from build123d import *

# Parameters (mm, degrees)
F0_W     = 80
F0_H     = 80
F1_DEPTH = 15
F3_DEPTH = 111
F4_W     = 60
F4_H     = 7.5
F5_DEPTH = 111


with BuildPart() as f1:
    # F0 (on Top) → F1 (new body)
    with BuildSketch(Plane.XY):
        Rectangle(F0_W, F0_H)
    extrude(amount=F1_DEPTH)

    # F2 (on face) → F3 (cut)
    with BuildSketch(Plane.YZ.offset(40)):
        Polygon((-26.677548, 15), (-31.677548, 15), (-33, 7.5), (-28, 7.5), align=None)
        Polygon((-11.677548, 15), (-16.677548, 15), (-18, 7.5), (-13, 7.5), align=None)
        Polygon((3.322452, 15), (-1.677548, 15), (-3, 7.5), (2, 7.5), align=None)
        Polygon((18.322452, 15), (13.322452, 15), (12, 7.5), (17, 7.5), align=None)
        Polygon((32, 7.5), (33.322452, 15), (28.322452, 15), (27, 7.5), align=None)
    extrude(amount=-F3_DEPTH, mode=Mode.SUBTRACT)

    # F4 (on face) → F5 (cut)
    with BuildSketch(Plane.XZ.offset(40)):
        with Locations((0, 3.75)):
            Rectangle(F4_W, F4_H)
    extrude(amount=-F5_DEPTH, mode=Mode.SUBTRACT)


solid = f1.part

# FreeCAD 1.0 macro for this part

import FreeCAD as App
import Part
import Sketcher
from FreeCAD import Vector
Q = App.Units.Quantity


def add_polygon(sketch, points):
    """Adds a closed chain of lines whose ends are joined by coincident constraints."""
    first, n = sketch.GeometryCount, len(points)
    for a, b in zip(points, points[1:] + points[:1]):
        sketch.addGeometry(Part.LineSegment(App.Vector(*a, 0), App.Vector(*b, 0)), False)
    for i in range(n):
        sketch.addConstraint(Sketcher.Constraint("Coincident", first + i, 2, first + (i + 1) % n, 1))

doc = App.newDocument("Part")
body = doc.addObject("PartDesign::Body", "Body")

# Sketch on XY plane
sketch1 = doc.addObject("Sketcher::SketchObject", "Sketch")
body.addObject(sketch1)
sketch1.AttachmentSupport = (doc.XY_Plane, [""])
sketch1.MapMode = "FlatFace"
add_polygon(sketch1, [(-40, 40), (-40, -40), (40, -40), (40, 40)])  # lines 0-3
sketch1.addConstraint(Sketcher.Constraint("Vertical", 0))
sketch1.addConstraint(Sketcher.Constraint("Horizontal", 1))
sketch1.addConstraint(Sketcher.Constraint("Vertical", 2))
sketch1.addConstraint(Sketcher.Constraint("Horizontal", 3))
sketch1.addConstraint(Sketcher.Constraint("Symmetric", 0, 2, 2, 2, -1, 1))
sketch1.addConstraint(Sketcher.Constraint("Equal", 3, 0))
sketch1.addConstraint(Sketcher.Constraint("DistanceX", 1, 1, 1, 2, Q("80 mm")))
pad1 = doc.addObject("PartDesign::Pad", "Pad")
body.addObject(pad1)
pad1.Profile = sketch1
pad1.Length = 15

# Sketch on YZ plane
sketch2 = doc.addObject("Sketcher::SketchObject", "Sketch001")
body.addObject(sketch2)
sketch2.AttachmentSupport = (doc.YZ_Plane, [""])
sketch2.MapMode = "FlatFace"
sketch2.AttachmentOffset = App.Placement(Vector(0, 0, 40), App.Rotation())
add_polygon(sketch2, [(-26.7, 15), (-31.7, 15), (-33, 7.5), (-28, 7.5)])  # lines 0-3
add_polygon(sketch2, [(-11.7, 15), (-16.7, 15), (-18, 7.5), (-13, 7.5)])  # lines 4-7
add_polygon(sketch2, [(3.3, 15), (-1.7, 15), (-3, 7.5), (2, 7.5)])  # lines 8-11
add_polygon(sketch2, [(18.3, 15), (13.3, 15), (12, 7.5), (17, 7.5)])  # lines 12-15
add_polygon(sketch2, [(32, 7.5), (33.3, 15), (28.3, 15), (27, 7.5)])  # lines 16-19
sketch2.addConstraint(Sketcher.Constraint("Horizontal", 0))
sketch2.addConstraint(Sketcher.Constraint("Horizontal", 2))
sketch2.addConstraint(Sketcher.Constraint("Horizontal", 4))
sketch2.addConstraint(Sketcher.Constraint("Horizontal", 6))
sketch2.addConstraint(Sketcher.Constraint("Horizontal", 8))
sketch2.addConstraint(Sketcher.Constraint("Horizontal", 10))
sketch2.addConstraint(Sketcher.Constraint("Horizontal", 12))
sketch2.addConstraint(Sketcher.Constraint("Horizontal", 14))
sketch2.addConstraint(Sketcher.Constraint("Horizontal", 17))
sketch2.addConstraint(Sketcher.Constraint("Horizontal", 19))
sketch2.addConstraint(Sketcher.Constraint("Parallel", 1, 3))
sketch2.addConstraint(Sketcher.Constraint("Parallel", 3, 5))
sketch2.addConstraint(Sketcher.Constraint("Parallel", 5, 7))
sketch2.addConstraint(Sketcher.Constraint("Parallel", 7, 9))
sketch2.addConstraint(Sketcher.Constraint("Parallel", 9, 11))
sketch2.addConstraint(Sketcher.Constraint("Parallel", 11, 13))
sketch2.addConstraint(Sketcher.Constraint("Parallel", 13, 15))
sketch2.addConstraint(Sketcher.Constraint("Parallel", 15, 16))
sketch2.addConstraint(Sketcher.Constraint("Parallel", 16, 18))
sketch2.addConstraint(Sketcher.Constraint("Horizontal", 3, 2, 4, 2))
sketch2.addConstraint(Sketcher.Constraint("Horizontal", 2, 2, 5, 2))
sketch2.addConstraint(Sketcher.Constraint("Horizontal", 7, 2, 8, 2))
sketch2.addConstraint(Sketcher.Constraint("Horizontal", 6, 2, 9, 2))
sketch2.addConstraint(Sketcher.Constraint("Horizontal", 11, 2, 12, 2))
sketch2.addConstraint(Sketcher.Constraint("Horizontal", 10, 2, 13, 2))
sketch2.addConstraint(Sketcher.Constraint("Horizontal", 15, 2, 16, 2))
sketch2.addConstraint(Sketcher.Constraint("Horizontal", 14, 2, 18, 2))
sketch2.addConstraint(Sketcher.Constraint("Equal", 2, 4))
sketch2.addConstraint(Sketcher.Constraint("Equal", 6, 8))
sketch2.addConstraint(Sketcher.Constraint("Equal", 10, 12))
sketch2.addConstraint(Sketcher.Constraint("Equal", 14, 17))
sketch2.addConstraint(Sketcher.Constraint("DistanceX", 0, 2, 0, 1, Q("5 mm")))
sketch2.addConstraint(Sketcher.Constraint("Angle", 1, Q("-99.999997 deg")))
sketch2.addConstraint(Sketcher.Constraint("DistanceY", -1, 1, 0, 2, Q("15 mm")))
sketch2.addConstraint(Sketcher.Constraint("DistanceX", 1, 2, -1, 1, Q("33 mm")))
sketch2.addConstraint(Sketcher.Constraint("DistanceX", 5, 2, -1, 1, Q("18 mm")))
sketch2.addConstraint(Sketcher.Constraint("DistanceX", 9, 2, -1, 1, Q("3 mm")))
sketch2.addConstraint(Sketcher.Constraint("DistanceX", -1, 1, 13, 2, Q("12 mm")))
sketch2.addConstraint(Sketcher.Constraint("DistanceX", -1, 1, 18, 2, Q("27 mm")))
sketch2.addConstraint(Sketcher.Constraint("DistanceY", -1, 1, 1, 2, Q("7.5 mm")))
pocket1 = doc.addObject("PartDesign::Pocket", "Pocket")
body.addObject(pocket1)
pocket1.Profile = sketch2
pocket1.Length = 111

# Sketch on XZ plane
sketch3 = doc.addObject("Sketcher::SketchObject", "Sketch002")
body.addObject(sketch3)
sketch3.AttachmentSupport = (doc.XZ_Plane, [""])
sketch3.MapMode = "FlatFace"
sketch3.AttachmentOffset = App.Placement(Vector(0, 0, 40), App.Rotation())
add_polygon(sketch3, [(-30, 8), (-30, 0), (30, 0), (30, 8)])  # lines 0-3
sketch3.addConstraint(Sketcher.Constraint("Vertical", 0))
sketch3.addConstraint(Sketcher.Constraint("Horizontal", 1))
sketch3.addConstraint(Sketcher.Constraint("Vertical", 2))
sketch3.addConstraint(Sketcher.Constraint("Horizontal", 3))
sketch3.addConstraint(Sketcher.Constraint("Symmetric", 0, 2, 1, 2, -1, 1))
sketch3.addConstraint(Sketcher.Constraint("DistanceX", 1, 1, 1, 2, Q("60 mm")))
sketch3.addConstraint(Sketcher.Constraint("DistanceY", 0, 2, 0, 1, Q("7.5 mm")))
pocket2 = doc.addObject("PartDesign::Pocket", "Pocket001")
body.addObject(pocket2)
pocket2.Profile = sketch3
pocket2.Length = 111

doc.recompute()
